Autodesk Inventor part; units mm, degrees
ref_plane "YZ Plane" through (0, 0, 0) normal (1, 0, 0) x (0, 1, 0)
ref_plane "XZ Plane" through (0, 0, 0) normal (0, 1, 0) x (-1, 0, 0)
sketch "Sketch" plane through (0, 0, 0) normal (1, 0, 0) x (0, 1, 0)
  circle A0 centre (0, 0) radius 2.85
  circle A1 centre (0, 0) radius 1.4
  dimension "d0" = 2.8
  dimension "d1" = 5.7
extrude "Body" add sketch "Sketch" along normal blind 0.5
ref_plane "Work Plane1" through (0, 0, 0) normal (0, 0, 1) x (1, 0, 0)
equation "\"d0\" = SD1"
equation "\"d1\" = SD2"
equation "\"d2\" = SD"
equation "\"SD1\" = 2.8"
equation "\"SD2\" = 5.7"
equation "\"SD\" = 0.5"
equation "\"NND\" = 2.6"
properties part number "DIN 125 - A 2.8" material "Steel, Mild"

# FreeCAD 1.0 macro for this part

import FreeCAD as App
import Part
import Sketcher
Q = App.Units.Quantity

doc = App.newDocument("Part")
body = doc.addObject("PartDesign::Body", "Body")

# Sketch on YZ plane
sketch1 = body.newObject("Sketcher::SketchObject", "Sketch")
sketch1.AttachmentSupport = (doc.getObject("YZ_Plane"), [""])
sketch1.MapMode = "FlatFace"
sketch1.addGeometry(Part.Circle(App.Vector(0, 0, 0), App.Vector(0, 0, 1), 2.85), False)
sketch1.addGeometry(Part.Circle(App.Vector(0, 0, 0), App.Vector(0, 0, 1), 1.4), False)
sketch1.addConstraint(Sketcher.Constraint("Coincident", 0, 3, -1, 1))
sketch1.addConstraint(Sketcher.Constraint("Coincident", 1, 3, -1, 1))
sketch1.addConstraint(Sketcher.Constraint("Diameter", 0, Q("5.7 mm")))
sketch1.addConstraint(Sketcher.Constraint("Diameter", 1, Q("2.8 mm")))
pad1 = body.newObject("PartDesign::Pad", "Pad")
pad1.Profile = sketch1
pad1.Length = 0.5

doc.recompute()
